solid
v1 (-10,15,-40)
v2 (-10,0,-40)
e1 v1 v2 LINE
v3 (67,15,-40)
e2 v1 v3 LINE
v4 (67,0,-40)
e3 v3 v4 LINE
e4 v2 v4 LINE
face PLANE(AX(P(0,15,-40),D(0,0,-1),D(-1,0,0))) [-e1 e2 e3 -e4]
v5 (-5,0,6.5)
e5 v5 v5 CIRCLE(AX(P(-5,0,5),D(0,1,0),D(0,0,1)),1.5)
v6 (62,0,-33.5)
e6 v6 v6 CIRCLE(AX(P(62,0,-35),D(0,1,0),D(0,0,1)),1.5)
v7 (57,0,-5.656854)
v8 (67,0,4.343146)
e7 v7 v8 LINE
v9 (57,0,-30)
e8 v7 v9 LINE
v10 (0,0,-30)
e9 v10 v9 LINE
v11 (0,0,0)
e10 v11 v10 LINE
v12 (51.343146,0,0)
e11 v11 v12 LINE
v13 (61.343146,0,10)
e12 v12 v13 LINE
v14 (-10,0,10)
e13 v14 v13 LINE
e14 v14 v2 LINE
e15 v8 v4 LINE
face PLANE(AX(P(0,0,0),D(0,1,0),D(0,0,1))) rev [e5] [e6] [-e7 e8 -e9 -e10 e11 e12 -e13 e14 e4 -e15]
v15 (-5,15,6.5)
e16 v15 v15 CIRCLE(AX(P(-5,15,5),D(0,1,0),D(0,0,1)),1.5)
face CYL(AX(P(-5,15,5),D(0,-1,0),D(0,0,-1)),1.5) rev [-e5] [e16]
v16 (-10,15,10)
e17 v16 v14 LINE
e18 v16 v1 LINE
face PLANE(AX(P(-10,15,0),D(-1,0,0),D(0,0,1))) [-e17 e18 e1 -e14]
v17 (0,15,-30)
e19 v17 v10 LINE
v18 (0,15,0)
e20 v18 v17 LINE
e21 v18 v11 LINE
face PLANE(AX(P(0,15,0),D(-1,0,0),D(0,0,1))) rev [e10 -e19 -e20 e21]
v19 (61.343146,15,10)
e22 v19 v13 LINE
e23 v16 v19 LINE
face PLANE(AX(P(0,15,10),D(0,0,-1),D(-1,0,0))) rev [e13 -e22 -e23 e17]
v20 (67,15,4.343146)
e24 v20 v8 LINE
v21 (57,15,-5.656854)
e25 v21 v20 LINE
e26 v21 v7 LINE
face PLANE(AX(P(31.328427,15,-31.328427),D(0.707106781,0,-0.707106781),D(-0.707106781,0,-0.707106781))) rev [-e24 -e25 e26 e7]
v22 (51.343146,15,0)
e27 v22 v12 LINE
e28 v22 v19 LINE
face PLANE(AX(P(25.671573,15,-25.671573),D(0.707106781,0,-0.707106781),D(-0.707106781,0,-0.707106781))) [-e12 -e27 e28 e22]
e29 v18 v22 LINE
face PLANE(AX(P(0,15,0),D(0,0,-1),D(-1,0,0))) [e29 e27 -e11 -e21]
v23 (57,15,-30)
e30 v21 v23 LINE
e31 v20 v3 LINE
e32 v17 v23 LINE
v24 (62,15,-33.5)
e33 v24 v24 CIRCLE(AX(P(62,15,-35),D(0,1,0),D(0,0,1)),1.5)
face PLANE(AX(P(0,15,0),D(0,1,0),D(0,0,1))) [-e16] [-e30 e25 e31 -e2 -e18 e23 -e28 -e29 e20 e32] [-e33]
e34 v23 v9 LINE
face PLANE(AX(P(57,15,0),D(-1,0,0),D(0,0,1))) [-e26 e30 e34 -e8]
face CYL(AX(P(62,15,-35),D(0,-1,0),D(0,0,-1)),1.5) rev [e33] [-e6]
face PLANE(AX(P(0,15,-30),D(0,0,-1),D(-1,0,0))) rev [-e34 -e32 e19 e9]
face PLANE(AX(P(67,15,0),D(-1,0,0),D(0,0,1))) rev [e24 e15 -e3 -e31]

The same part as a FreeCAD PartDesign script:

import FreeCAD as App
import Part
import Sketcher
from FreeCAD import Vector
Q = App.Units.Quantity


def add_polygon(sketch, points):
    """Adds a closed chain of lines whose ends are joined by coincident constraints."""
    first, n = sketch.GeometryCount, len(points)
    for a, b in zip(points, points[1:] + points[:1]):
        sketch.addGeometry(Part.LineSegment(App.Vector(*a, 0), App.Vector(*b, 0)), False)
    for i in range(n):
        sketch.addConstraint(Sketcher.Constraint("Coincident", first + i, 2, first + (i + 1) % n, 1))

doc = App.newDocument("Part")
body = doc.addObject("PartDesign::Body", "Body")

sketch1 = doc.addObject("Sketcher::SketchObject", "Sketch")
body.addObject(sketch1)
sketch1.AttachmentSupport = (doc.XZ_Plane, [""])
sketch1.MapMode = "FlatFace"
add_polygon(sketch1, [(67, -40), (-10, -40), (-10, 10), (61.3, 10), (51.3, 0), (0, 0), (0, -30), (57, -30), (57, -5.7), (67, 4.3)])
sketch1.addGeometry(Part.Circle(Vector(-5, 5, 0), Vector(0, 0, 1), 1.5), False)
sketch1.addGeometry(Part.Circle(Vector(62, -35, 0), Vector(0, 0, 1), 1.5), False)
sketch1.addConstraint([
    Sketcher.Constraint("Horizontal", 0),
    Sketcher.Constraint("Vertical", 1),
    Sketcher.Constraint("Horizontal", 2),
    Sketcher.Constraint("Horizontal", 4),
    Sketcher.Constraint("Vertical", 5),
    Sketcher.Constraint("Horizontal", 6),
    Sketcher.Constraint("Vertical", 7),
    Sketcher.Constraint("Vertical", 9),
    Sketcher.Constraint("Coincident", 4, 2, -1, 1),
    Sketcher.Constraint("Equal", 10, 11),
    Sketcher.Constraint("Parallel", 3, 8),
    Sketcher.Constraint("Equal", 3, 8),
    Sketcher.Constraint("Diameter", 10, Q("3 mm")),
    Sketcher.Constraint("DistanceX", 0, 2, 0, 1, Q("77 mm")),
    Sketcher.Constraint("DistanceX", 6, 1, 6, 2, Q("57 mm")),
    Sketcher.Constraint("DistanceY", 1, 1, 1, 2, Q("50 mm")),
    Sketcher.Constraint("DistanceY", 5, 2, 5, 1, Q("30 mm")),
    Sketcher.Constraint("Angle", 3, Q("-135 deg")),
    Sketcher.Constraint("DistanceX", 10, 3, -1, 1, Q("5 mm")),
    Sketcher.Constraint("DistanceY", -1, 1, 10, 3, Q("5 mm")),
    Sketcher.Constraint("DistanceX", -1, 1, 11, 3, Q("62 mm")),
    Sketcher.Constraint("DistanceY", 11, 3, -1, 1, Q("35 mm")),
    Sketcher.Constraint("DistanceX", 0, 2, -1, 1, Q("10 mm")),
    Sketcher.Constraint("DistanceX", 2, 1, 2, 2, Q("71.343146 mm")),
    Sketcher.Constraint("DistanceY", 7, 1, 7, 2, Q("24.343146 mm")),
])
pad1 = doc.addObject("PartDesign::Pad", "Pad")
body.addObject(pad1)
pad1.Profile = sketch1
pad1.Length = 15
pad1.Reversed = True

doc.recompute()
